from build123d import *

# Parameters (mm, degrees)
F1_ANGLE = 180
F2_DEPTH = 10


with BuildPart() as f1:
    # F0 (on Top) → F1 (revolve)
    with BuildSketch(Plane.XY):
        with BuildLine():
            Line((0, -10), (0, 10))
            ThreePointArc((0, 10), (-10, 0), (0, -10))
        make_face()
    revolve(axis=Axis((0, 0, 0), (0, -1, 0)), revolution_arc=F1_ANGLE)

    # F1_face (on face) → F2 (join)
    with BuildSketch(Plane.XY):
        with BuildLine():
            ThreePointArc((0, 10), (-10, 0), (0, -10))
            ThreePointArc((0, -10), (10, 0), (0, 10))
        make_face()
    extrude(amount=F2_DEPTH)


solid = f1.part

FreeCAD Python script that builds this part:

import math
import FreeCAD as App
import Part
import Sketcher
from FreeCAD import Vector
Q = App.Units.Quantity

doc = App.newDocument("Part")
params = doc.addObject("Spreadsheet::Sheet", "Params")
for row, (alias, value) in enumerate([
    ("sketch1_radius", "10 mm"),
    ("revolution_angle", "180 deg"),
    ("sketch2_diameter", "20 mm"),
    ("pad1_length", "10 mm"),
], start=1):
    params.set(f"A{row}", alias)
    params.set(f"B{row}", "=" + value)
    params.setAlias(f"B{row}", alias)

body = doc.addObject("PartDesign::Body", "Body")

sketch1 = body.newObject("Sketcher::SketchObject", "Sketch")
sketch1.AttachmentSupport = (doc.getObject("XY_Plane"), [""])
sketch1.MapMode = "FlatFace"
sketch1.addGeometry(Part.LineSegment(Vector(0, -10, 0), Vector(0, 10, 0)), False)
sketch1.addGeometry(Part.ArcOfCircle(Part.Circle(Vector(0, 0, 0), Vector(0, 0, 1), 10), math.radians(90), math.radians(270)), False)
sketch1.addConstraint(Sketcher.Constraint("Coincident", 0, 1, 1, 2))
sketch1.addConstraint(Sketcher.Constraint("Coincident", 1, 1, 0, 2))
sketch1.addConstraint(Sketcher.Constraint("Vertical", 0))
sketch1.addConstraint(Sketcher.Constraint("Coincident", 1, 3, -1, 1))
sketch1.addConstraint(Sketcher.Constraint("PointOnObject", 0, 1, -2))
sketch1.addConstraint(Sketcher.Constraint("Radius", 1, Q("10 mm")))
sketch1.setExpression("Constraints[5]", "Params.sketch1_radius")
revolution = body.newObject("PartDesign::Revolution", "Revolution")
revolution.Profile = sketch1
revolution.ReferenceAxis = (sketch1, ["V_Axis"])
revolution.setExpression("Angle", "Params.revolution_angle")
revolution.Reversed = True

sketch2 = body.newObject("Sketcher::SketchObject", "Sketch001")
sketch2.AttachmentSupport = (doc.getObject("XY_Plane"), [""])
sketch2.MapMode = "FlatFace"
sketch2.addGeometry(Part.Circle(Vector(0, 0, 0), Vector(0, 0, 1), 10), False)
sketch2.addConstraint(Sketcher.Constraint("Coincident", 0, 3, -1, 1))
sketch2.addConstraint(Sketcher.Constraint("Diameter", 0, Q("20 mm")))
sketch2.setExpression("Constraints[1]", "Params.sketch2_diameter")
pad1 = body.newObject("PartDesign::Pad", "Pad")
pad1.Profile = sketch2
pad1.setExpression("Length", "Params.pad1_length")

doc.recompute()
